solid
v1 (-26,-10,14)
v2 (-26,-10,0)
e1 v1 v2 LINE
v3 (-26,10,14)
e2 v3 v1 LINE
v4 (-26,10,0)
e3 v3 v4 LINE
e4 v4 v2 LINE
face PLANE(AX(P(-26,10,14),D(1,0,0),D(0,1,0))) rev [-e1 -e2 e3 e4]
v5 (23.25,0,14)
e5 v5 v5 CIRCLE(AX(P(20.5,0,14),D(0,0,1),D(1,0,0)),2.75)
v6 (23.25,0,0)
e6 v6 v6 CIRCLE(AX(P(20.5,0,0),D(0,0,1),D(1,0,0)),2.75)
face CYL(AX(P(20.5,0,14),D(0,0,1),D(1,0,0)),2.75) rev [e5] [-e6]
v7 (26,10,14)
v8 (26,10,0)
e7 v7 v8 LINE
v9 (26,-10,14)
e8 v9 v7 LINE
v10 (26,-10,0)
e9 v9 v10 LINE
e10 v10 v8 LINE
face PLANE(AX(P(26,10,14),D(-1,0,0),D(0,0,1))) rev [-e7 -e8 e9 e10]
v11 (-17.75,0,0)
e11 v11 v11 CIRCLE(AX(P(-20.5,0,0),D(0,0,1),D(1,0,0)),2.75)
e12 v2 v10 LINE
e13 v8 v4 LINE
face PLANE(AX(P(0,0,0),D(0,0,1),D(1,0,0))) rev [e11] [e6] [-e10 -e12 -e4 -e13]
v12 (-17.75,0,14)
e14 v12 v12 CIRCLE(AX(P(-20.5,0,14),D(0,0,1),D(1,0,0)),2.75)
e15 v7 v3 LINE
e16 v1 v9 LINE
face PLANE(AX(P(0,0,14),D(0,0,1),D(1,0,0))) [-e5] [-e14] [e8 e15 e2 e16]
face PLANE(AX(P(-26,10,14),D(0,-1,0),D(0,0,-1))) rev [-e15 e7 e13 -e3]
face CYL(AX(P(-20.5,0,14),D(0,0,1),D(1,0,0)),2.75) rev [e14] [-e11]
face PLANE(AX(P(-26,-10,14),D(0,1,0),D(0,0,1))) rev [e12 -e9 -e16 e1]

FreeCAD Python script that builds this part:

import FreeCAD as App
import Part
import Sketcher

V = App.Vector


def add_polygon(sketch, points):
    """Adds a closed chain of lines whose ends are joined by coincident constraints."""
    first, n = sketch.GeometryCount, len(points)
    for a, b in zip(points, points[1:] + points[:1]):
        sketch.addGeometry(Part.LineSegment(App.Vector(*a, 0), App.Vector(*b, 0)), False)
    for i in range(n):
        sketch.addConstraint(Sketcher.Constraint("Coincident", first + i, 2, first + (i + 1) % n, 1))

doc = App.newDocument("Part")
body = doc.addObject("PartDesign::Body", "Body")

sketch1 = body.newObject("Sketcher::SketchObject", "Sketch")
sketch1.AttachmentSupport = (doc.getObject("XY_Plane"), [""])
sketch1.MapMode = "FlatFace"
add_polygon(sketch1, [(-26, 10), (-26, -10), (26, -10), (26, 10)])
sketch1.addConstraint([
    Sketcher.Constraint("Vertical", 0),
    Sketcher.Constraint("Horizontal", 1),
    Sketcher.Constraint("Vertical", 2),
    Sketcher.Constraint("Horizontal", 3),
    Sketcher.Constraint("Symmetric", 0, 2, 2, 2, -1, 1),
    Sketcher.Constraint("DistanceX", 1, 1, 1, 2, 52.0),
    Sketcher.Constraint("DistanceY", 0, 2, 0, 1, 20.0),
])
pad1 = body.newObject("PartDesign::Pad", "Pad")
pad1.Profile = sketch1
pad1.Length = 14

sketch2 = body.newObject("Sketcher::SketchObject", "Sketch001")
sketch2.AttachmentSupport = (doc.getObject("XY_Plane"), [""])
sketch2.MapMode = "FlatFace"
sketch2.AttachmentOffset = App.Placement(V(0, 0, 14), App.Rotation())
sketch2.addGeometry([
    Part.Circle(V(-20.5, 0, 0), V(0, 0, 1), 2.8),
    Part.Circle(V(20.5, 0, 0), V(0, 0, 1), 2.8),
], False)
sketch2.addConstraint([
    Sketcher.Constraint("Equal", 0, 1),
    Sketcher.Constraint("Symmetric", 0, 3, 1, 3, -1, 1),
    Sketcher.Constraint("PointOnObject", 0, 3, -1),
    Sketcher.Constraint("Diameter", 0, 5.5),
    Sketcher.Constraint("DistanceX", 0, 3, 1, 3, 41.0),
])
doc.recompute()
hole = body.newObject("PartDesign::Hole", "Hole")
hole.Profile = sketch2
hole.ThreadType = "None"
hole.Diameter = 5.5
hole.DepthType = "ThroughAll"

doc.recompute()
